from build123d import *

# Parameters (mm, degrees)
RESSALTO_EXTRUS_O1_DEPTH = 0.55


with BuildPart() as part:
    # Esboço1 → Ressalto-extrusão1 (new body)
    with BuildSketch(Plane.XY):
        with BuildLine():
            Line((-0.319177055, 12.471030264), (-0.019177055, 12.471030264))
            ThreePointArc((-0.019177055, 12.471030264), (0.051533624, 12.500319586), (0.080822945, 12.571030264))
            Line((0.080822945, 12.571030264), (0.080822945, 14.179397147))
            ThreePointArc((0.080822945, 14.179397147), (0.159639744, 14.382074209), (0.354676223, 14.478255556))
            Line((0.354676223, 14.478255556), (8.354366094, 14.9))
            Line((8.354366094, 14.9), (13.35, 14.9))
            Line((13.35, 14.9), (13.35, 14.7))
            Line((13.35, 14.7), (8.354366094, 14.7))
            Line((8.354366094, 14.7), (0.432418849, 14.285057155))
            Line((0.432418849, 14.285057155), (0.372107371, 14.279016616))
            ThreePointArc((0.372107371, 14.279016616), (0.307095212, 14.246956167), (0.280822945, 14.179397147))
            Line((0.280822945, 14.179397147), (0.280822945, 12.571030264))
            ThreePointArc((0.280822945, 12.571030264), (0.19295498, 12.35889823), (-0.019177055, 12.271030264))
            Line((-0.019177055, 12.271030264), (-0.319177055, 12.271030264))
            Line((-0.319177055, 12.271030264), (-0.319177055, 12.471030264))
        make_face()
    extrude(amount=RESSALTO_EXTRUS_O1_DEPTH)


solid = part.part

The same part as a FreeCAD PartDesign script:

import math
import FreeCAD as App
import Part
import Sketcher

V = App.Vector
Q = App.Units.Quantity

doc = App.newDocument("Part")
params = doc.addObject("Spreadsheet::Sheet", "Params")
for row, (alias, value) in enumerate([
    ("sketch1_radius", "0.3 mm"),
    ("sketch1_radius2", "0.1 mm"),
    ("sketch1_width", "0.3 mm"),
    ("pad1_length", "0.55 mm"),
], start=1):
    params.set(f"A{row}", alias)
    params.set(f"B{row}", "=" + value)
    params.setAlias(f"B{row}", alias)

body = doc.addObject("PartDesign::Body", "Body")

# Sketch on XY plane
sketch1 = body.newObject("Sketcher::SketchObject", "Sketch")
sketch1.AttachmentSupport = (doc.getObject("XY_Plane"), [""])
sketch1.MapMode = "FlatFace"
sketch1.addGeometry([
    Part.LineSegment(V(-0.02, 12.47, 0), V(-0.32, 12.47, 0)),  # 0
    Part.LineSegment(V(-0.32, 12.47, 0), V(-0.32, 12.27, 0)),  # 1
    Part.LineSegment(V(-0.32, 12.27, 0), V(-0.02, 12.27, 0)),  # 2
    Part.ArcOfCircle(Part.Circle(V(-0.02, 12.57, 0), V(0, 0, 1), 0.3), math.radians(-90), math.radians(0)),  # 3
    Part.LineSegment(V(0.28, 12.57, 0), V(0.28, 14.18, 0)),  # 4
    Part.ArcOfCircle(Part.Circle(V(0.38, 14.18, 0), V(0, 0, 1), 0.1), math.radians(95), math.radians(180)),  # 5
    Part.LineSegment(V(0.37, 14.28, 0), V(0.43, 14.29, 0)),  # 6
    Part.LineSegment(V(0.43, 14.29, 0), V(8.35, 14.7, 0)),  # 7
    Part.LineSegment(V(8.35, 14.7, 0), V(13.35, 14.7, 0)),  # 8
    Part.LineSegment(V(13.35, 14.7, 0), V(13.35, 14.9, 0)),  # 9
    Part.LineSegment(V(13.35, 14.9, 0), V(8.35, 14.9, 0)),  # 10
    Part.LineSegment(V(8.35, 14.9, 0), V(0.35, 14.48, 0)),  # 11
    Part.ArcOfCircle(Part.Circle(V(0.38, 14.18, 0), V(0, 0, 1), 0.3), math.radians(95), math.radians(180)),  # 12
    Part.LineSegment(V(0.08, 14.18, 0), V(0.08, 12.57, 0)),  # 13
    Part.ArcOfCircle(Part.Circle(V(-0.02, 12.57, 0), V(0, 0, 1), 0.1), math.radians(-90), math.radians(0)),  # 14
], False)
sketch1.addConstraint([
    Sketcher.Constraint("Coincident", 0, 2, 1, 1),
    Sketcher.Constraint("Coincident", 1, 2, 2, 1),
    Sketcher.Constraint("Tangent", 2, 2, 3, 1),
    Sketcher.Constraint("Tangent", 3, 2, 4, 1),
    Sketcher.Constraint("Tangent", 4, 2, 5, 2),
    Sketcher.Constraint("Coincident", 5, 1, 6, 1),
    Sketcher.Constraint("Coincident", 6, 2, 7, 1),
    Sketcher.Constraint("Coincident", 7, 2, 8, 1),
    Sketcher.Constraint("Coincident", 8, 2, 9, 1),
    Sketcher.Constraint("Coincident", 9, 2, 10, 1),
    Sketcher.Constraint("Coincident", 10, 2, 11, 1),
    Sketcher.Constraint("Coincident", 11, 2, 12, 1),
    Sketcher.Constraint("Tangent", 12, 2, 13, 1),
    Sketcher.Constraint("Tangent", 13, 2, 14, 2),
    Sketcher.Constraint("Tangent", 14, 1, 0, 1),
    Sketcher.Constraint("Horizontal", 0),
    Sketcher.Constraint("Vertical", 1),
    Sketcher.Constraint("Horizontal", 2),
    Sketcher.Constraint("Vertical", 4),
    Sketcher.Constraint("Horizontal", 8),
    Sketcher.Constraint("Vertical", 9),
    Sketcher.Constraint("Horizontal", 10),
    Sketcher.Constraint("Vertical", 13),
    Sketcher.Constraint("Coincident", 12, 3, 5, 3),
    Sketcher.Constraint("Coincident", 14, 3, 3, 3),
    Sketcher.Constraint("Equal", 3, 12),
    Sketcher.Constraint("Vertical", 7, 2, 10, 2),
    Sketcher.Constraint("Equal", 1, 9),
    Sketcher.Constraint("Radius", 3, Q("0.3 mm")),
    Sketcher.Constraint("Radius", 5, Q("0.1 mm")),
    Sketcher.Constraint("DistanceX", 0, 2, 0, 1, Q("0.3 mm")),
    Sketcher.Constraint("DistanceY", -1, 1, 7, 2, Q("14.7 mm")),
    Sketcher.Constraint("DistanceX", -1, 1, 8, 2, Q("13.35 mm")),
    Sketcher.Constraint("Distance", 11, Q("8.010799 mm")),
    Sketcher.Constraint("DistanceY", 6, 2, 11, 2, Q("0.193198 mm")),
    Sketcher.Constraint("DistanceX", 8, 1, 8, 2, Q("4.995634 mm")),
    Sketcher.Constraint("DistanceY", 4, 1, 4, 2, Q("1.608367 mm")),
    Sketcher.Constraint("DistanceY", -1, 1, 3, 3, Q("12.57103 mm")),
    Sketcher.Constraint("DistanceX", -1, 1, 6, 2, Q("0.432419 mm")),
    Sketcher.Constraint("DistanceY", 12, 3, 5, 1, Q("0.099619 mm")),
    Sketcher.Constraint("DistanceX", 5, 1, 6, 2, Q("0.060311 mm")),
])
sketch1.setExpression("Constraints[28]", "Params.sketch1_radius")
sketch1.setExpression("Constraints[29]", "Params.sketch1_radius2")
sketch1.setExpression("Constraints[30]", "Params.sketch1_width")
pad1 = body.newObject("PartDesign::Pad", "Pad")
pad1.Profile = sketch1
pad1.setExpression("Length", "Params.pad1_length")

doc.recompute()
